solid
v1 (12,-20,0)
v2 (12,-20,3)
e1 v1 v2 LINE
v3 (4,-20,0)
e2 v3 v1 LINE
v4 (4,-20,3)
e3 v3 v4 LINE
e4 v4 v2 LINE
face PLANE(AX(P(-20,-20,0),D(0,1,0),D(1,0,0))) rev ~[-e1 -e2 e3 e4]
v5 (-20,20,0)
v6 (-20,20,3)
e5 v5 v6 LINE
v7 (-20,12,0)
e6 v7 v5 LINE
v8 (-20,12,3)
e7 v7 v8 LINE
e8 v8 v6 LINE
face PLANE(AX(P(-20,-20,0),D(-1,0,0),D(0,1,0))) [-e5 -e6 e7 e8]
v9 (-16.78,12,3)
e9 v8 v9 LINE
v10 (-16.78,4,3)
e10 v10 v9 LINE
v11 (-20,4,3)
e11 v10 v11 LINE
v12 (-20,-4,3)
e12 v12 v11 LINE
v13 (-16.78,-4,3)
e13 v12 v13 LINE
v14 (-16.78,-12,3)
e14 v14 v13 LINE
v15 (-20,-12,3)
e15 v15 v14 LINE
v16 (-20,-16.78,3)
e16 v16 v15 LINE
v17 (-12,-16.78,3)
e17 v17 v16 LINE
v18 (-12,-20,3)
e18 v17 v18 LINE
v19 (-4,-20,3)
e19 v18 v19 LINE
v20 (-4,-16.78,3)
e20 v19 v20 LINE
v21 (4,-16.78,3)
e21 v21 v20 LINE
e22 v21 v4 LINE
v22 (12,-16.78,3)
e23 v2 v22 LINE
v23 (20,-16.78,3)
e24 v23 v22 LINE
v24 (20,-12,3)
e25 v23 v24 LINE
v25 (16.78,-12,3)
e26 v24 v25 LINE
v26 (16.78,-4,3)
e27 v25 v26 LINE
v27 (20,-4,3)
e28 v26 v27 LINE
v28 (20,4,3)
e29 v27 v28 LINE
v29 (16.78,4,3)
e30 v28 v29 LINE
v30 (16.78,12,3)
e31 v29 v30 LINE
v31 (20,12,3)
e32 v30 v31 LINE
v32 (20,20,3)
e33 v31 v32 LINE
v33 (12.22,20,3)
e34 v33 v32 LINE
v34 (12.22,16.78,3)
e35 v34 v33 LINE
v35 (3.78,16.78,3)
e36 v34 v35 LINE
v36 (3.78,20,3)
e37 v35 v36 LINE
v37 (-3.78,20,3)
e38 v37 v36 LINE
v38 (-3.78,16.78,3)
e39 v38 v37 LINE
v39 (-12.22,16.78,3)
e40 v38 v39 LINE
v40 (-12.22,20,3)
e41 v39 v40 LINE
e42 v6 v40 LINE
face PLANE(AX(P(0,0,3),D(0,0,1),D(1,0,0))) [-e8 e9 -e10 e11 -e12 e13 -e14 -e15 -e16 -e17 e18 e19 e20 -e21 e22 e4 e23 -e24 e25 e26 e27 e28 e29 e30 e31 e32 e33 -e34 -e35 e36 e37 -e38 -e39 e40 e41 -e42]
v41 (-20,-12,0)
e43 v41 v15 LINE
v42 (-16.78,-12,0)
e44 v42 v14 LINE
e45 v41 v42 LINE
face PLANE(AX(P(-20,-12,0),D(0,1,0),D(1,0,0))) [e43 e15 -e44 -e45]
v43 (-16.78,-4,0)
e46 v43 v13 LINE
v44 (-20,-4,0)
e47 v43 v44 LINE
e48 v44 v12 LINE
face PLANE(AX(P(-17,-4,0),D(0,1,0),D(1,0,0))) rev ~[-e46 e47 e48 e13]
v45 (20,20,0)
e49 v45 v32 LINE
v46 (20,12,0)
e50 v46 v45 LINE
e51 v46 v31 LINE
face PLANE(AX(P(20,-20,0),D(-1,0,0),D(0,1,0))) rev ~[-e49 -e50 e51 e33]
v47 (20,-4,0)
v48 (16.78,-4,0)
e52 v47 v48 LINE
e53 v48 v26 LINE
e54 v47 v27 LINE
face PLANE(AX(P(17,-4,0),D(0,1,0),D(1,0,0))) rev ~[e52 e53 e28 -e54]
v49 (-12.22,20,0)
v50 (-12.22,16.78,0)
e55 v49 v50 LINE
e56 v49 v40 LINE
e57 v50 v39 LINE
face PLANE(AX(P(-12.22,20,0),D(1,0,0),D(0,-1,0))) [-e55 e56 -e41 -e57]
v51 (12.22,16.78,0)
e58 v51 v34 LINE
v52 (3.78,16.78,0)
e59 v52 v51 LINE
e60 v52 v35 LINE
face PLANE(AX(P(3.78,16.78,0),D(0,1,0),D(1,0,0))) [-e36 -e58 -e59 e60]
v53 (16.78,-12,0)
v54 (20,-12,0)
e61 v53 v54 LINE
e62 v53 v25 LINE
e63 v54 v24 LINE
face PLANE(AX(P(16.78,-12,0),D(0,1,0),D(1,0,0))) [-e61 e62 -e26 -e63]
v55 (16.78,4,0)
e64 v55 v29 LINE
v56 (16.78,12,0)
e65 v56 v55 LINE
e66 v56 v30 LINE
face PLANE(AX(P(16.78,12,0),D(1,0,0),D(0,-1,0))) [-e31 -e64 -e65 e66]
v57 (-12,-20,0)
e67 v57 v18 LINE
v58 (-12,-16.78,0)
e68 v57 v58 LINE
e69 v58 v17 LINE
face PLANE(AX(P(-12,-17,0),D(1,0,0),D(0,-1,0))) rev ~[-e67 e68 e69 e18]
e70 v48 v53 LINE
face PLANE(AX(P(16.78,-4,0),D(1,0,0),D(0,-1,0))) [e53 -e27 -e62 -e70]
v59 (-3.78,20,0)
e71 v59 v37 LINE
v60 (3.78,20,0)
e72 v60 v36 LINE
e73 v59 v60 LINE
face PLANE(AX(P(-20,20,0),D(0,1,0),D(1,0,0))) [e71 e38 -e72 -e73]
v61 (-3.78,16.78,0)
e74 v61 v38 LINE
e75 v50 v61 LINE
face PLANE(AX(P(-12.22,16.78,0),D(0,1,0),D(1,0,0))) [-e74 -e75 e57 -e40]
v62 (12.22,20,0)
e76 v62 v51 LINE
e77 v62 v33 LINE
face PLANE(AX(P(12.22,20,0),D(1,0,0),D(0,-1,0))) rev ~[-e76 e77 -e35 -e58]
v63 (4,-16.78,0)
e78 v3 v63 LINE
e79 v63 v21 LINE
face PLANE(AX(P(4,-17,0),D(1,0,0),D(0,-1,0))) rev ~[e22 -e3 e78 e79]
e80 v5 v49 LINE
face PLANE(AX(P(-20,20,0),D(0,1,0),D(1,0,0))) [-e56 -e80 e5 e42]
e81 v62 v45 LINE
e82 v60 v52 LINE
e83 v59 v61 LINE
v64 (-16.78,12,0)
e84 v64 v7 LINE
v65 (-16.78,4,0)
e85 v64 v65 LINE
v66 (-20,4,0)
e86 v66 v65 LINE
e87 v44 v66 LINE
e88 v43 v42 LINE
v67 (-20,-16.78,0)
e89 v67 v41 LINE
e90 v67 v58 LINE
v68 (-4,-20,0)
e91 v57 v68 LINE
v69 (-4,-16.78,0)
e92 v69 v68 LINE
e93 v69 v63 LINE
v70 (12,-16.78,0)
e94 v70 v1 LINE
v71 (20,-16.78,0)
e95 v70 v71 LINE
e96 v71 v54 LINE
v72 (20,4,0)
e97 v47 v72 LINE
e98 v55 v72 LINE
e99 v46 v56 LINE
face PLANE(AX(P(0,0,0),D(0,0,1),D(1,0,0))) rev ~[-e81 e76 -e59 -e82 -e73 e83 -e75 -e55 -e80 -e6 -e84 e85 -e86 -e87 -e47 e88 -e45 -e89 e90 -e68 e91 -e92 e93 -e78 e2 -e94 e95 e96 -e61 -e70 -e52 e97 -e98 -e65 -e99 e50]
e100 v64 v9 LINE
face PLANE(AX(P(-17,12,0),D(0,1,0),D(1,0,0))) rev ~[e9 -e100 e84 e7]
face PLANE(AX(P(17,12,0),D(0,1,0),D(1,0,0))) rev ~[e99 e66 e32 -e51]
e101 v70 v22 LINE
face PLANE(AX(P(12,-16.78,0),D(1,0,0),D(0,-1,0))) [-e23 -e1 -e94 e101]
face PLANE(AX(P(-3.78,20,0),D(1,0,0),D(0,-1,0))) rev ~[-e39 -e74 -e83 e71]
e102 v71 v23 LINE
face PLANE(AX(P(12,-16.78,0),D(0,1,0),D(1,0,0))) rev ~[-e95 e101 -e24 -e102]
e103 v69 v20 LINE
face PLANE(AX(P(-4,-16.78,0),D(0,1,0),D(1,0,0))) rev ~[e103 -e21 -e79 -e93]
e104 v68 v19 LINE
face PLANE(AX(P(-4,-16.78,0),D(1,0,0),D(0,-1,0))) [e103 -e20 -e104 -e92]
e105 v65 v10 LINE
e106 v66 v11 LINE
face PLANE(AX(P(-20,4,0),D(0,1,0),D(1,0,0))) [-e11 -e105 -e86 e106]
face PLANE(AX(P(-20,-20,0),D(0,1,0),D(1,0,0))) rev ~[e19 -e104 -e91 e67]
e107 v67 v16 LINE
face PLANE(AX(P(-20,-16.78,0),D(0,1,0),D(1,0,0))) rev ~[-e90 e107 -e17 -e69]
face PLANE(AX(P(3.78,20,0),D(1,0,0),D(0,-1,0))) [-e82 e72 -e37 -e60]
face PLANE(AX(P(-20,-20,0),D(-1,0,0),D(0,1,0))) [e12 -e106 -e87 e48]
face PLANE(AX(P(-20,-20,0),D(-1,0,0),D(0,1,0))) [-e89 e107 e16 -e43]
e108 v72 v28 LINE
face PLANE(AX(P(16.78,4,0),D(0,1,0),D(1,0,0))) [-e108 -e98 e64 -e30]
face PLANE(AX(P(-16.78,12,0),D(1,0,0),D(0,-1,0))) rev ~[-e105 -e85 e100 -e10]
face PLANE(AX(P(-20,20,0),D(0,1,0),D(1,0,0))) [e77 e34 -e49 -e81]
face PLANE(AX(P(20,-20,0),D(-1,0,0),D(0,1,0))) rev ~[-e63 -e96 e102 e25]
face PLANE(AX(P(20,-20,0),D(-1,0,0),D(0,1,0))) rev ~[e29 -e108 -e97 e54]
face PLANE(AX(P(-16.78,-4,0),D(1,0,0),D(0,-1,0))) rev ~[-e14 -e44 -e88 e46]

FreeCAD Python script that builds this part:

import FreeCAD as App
import Part
import Sketcher

doc = App.newDocument("Part")
body = doc.addObject("PartDesign::Body", "Body")

# Sketch on XY plane
sketch1 = body.newObject("Sketcher::SketchObject", "Sketch")
sketch1.AttachmentSupport = (doc.getObject("XY_Plane"), [""])
sketch1.MapMode = "FlatFace"
sketch1.addGeometry([
    Part.LineSegment(App.Vector(-20, 20, 0), App.Vector(-20, -20, 0)),
    Part.LineSegment(App.Vector(-20, -20, 0), App.Vector(20, -20, 0)),
    Part.LineSegment(App.Vector(20, -20, 0), App.Vector(20, 20, 0)),
    Part.LineSegment(App.Vector(20, 20, 0), App.Vector(-20, 20, 0)),
], False)
sketch1.addConstraint([
    Sketcher.Constraint("Coincident", 0, 2, 1, 1),
    Sketcher.Constraint("Coincident", 1, 2, 2, 1),
    Sketcher.Constraint("Coincident", 2, 2, 3, 1),
    Sketcher.Constraint("Coincident", 3, 2, 0, 1),
    Sketcher.Constraint("Vertical", 0),
    Sketcher.Constraint("Horizontal", 1),
    Sketcher.Constraint("Vertical", 2),
    Sketcher.Constraint("Horizontal", 3),
    Sketcher.Constraint("Symmetric", 0, 2, 2, 2, -1, 1),
    Sketcher.Constraint("Equal", 3, 0),
    Sketcher.Constraint("DistanceX", 1, 1, 1, 2, 40.0),
])
pad1 = body.newObject("PartDesign::Pad", "Pad")
pad1.Profile = sketch1
pad1.Length = 3

# Sketch on XY plane
sketch2 = body.newObject("Sketcher::SketchObject", "Sketch001")
sketch2.AttachmentSupport = (doc.getObject("XY_Plane"), [""])
sketch2.MapMode = "FlatFace"
sketch2.addGeometry([
    Part.LineSegment(App.Vector(-12, 17, 0), App.Vector(-12, 20, 0)),  # 0
    Part.LineSegment(App.Vector(-12, 20, 0), App.Vector(-4, 20, 0)),  # 1
    Part.LineSegment(App.Vector(-4, 20, 0), App.Vector(-4, 17, 0)),  # 2
    Part.LineSegment(App.Vector(-4, 17, 0), App.Vector(-12, 17, 0)),  # 3
    Part.LineSegment(App.Vector(4, 17, 0), App.Vector(4, 20, 0)),  # 4
    Part.LineSegment(App.Vector(4, 20, 0), App.Vector(12, 20, 0)),  # 5
    Part.LineSegment(App.Vector(12, 20, 0), App.Vector(12, 17, 0)),  # 6
    Part.LineSegment(App.Vector(12, 17, 0), App.Vector(4, 17, 0)),  # 7
    Part.LineSegment(App.Vector(12, -20, 0), App.Vector(12, -17, 0)),  # 8
    Part.LineSegment(App.Vector(12, -17, 0), App.Vector(20, -17, 0)),  # 9
    Part.LineSegment(App.Vector(20, -17, 0), App.Vector(20, -20, 0)),  # 10
    Part.LineSegment(App.Vector(20, -20, 0), App.Vector(12, -20, 0)),  # 11
    Part.LineSegment(App.Vector(-4, -20, 0), App.Vector(-4, -17, 0)),  # 12
    Part.LineSegment(App.Vector(-4, -17, 0), App.Vector(4, -17, 0)),  # 13
    Part.LineSegment(App.Vector(4, -17, 0), App.Vector(4, -20, 0)),  # 14
    Part.LineSegment(App.Vector(4, -20, 0), App.Vector(-4, -20, 0)),  # 15
    Part.LineSegment(App.Vector(-20, 4, 0), App.Vector(-20, 12, 0)),  # 16
    Part.LineSegment(App.Vector(-20, 12, 0), App.Vector(-17, 12, 0)),  # 17
    Part.LineSegment(App.Vector(-17, 12, 0), App.Vector(-17, 4, 0)),  # 18
    Part.LineSegment(App.Vector(-17, 4, 0), App.Vector(-20, 4, 0)),  # 19
    Part.LineSegment(App.Vector(-20, -12, 0), App.Vector(-20, -4, 0)),  # 20
    Part.LineSegment(App.Vector(-20, -4, 0), App.Vector(-17, -4, 0)),  # 21
    Part.LineSegment(App.Vector(-17, -4, 0), App.Vector(-17, -12, 0)),  # 22
    Part.LineSegment(App.Vector(-17, -12, 0), App.Vector(-20, -12, 0)),  # 23
    Part.LineSegment(App.Vector(17, 4, 0), App.Vector(17, 12, 0)),  # 24
    Part.LineSegment(App.Vector(17, 12, 0), App.Vector(20, 12, 0)),  # 25
    Part.LineSegment(App.Vector(20, 12, 0), App.Vector(20, 4, 0)),  # 26
    Part.LineSegment(App.Vector(20, 4, 0), App.Vector(17, 4, 0)),  # 27
    Part.LineSegment(App.Vector(17, -12, 0), App.Vector(17, -4, 0)),  # 28
    Part.LineSegment(App.Vector(17, -4, 0), App.Vector(20, -4, 0)),  # 29
    Part.LineSegment(App.Vector(20, -4, 0), App.Vector(20, -12, 0)),  # 30
    Part.LineSegment(App.Vector(20, -12, 0), App.Vector(17, -12, 0)),  # 31
    Part.LineSegment(App.Vector(-20, -20, 0), App.Vector(-20, -17, 0)),  # 32
    Part.LineSegment(App.Vector(-20, -17, 0), App.Vector(-12, -17, 0)),  # 33
    Part.LineSegment(App.Vector(-12, -17, 0), App.Vector(-12, -20, 0)),  # 34
    Part.LineSegment(App.Vector(-12, -20, 0), App.Vector(-20, -20, 0)),  # 35
], False)
sketch2.addConstraint([
    Sketcher.Constraint("Coincident", 0, 2, 1, 1),
    Sketcher.Constraint("Coincident", 1, 2, 2, 1),
    Sketcher.Constraint("Coincident", 2, 2, 3, 1),
    Sketcher.Constraint("Coincident", 3, 2, 0, 1),
    Sketcher.Constraint("Coincident", 4, 2, 5, 1),
    Sketcher.Constraint("Coincident", 5, 2, 6, 1),
    Sketcher.Constraint("Coincident", 6, 2, 7, 1),
    Sketcher.Constraint("Coincident", 7, 2, 4, 1),
    Sketcher.Constraint("Coincident", 8, 2, 9, 1),
    Sketcher.Constraint("Coincident", 9, 2, 10, 1),
    Sketcher.Constraint("Coincident", 10, 2, 11, 1),
    Sketcher.Constraint("Coincident", 11, 2, 8, 1),
    Sketcher.Constraint("Coincident", 12, 2, 13, 1),
    Sketcher.Constraint("Coincident", 13, 2, 14, 1),
    Sketcher.Constraint("Coincident", 14, 2, 15, 1),
    Sketcher.Constraint("Coincident", 15, 2, 12, 1),
    Sketcher.Constraint("Coincident", 16, 2, 17, 1),
    Sketcher.Constraint("Coincident", 17, 2, 18, 1),
    Sketcher.Constraint("Coincident", 18, 2, 19, 1),
    Sketcher.Constraint("Coincident", 19, 2, 16, 1),
    Sketcher.Constraint("Coincident", 20, 2, 21, 1),
    Sketcher.Constraint("Coincident", 21, 2, 22, 1),
    Sketcher.Constraint("Coincident", 22, 2, 23, 1),
    Sketcher.Constraint("Coincident", 23, 2, 20, 1),
    Sketcher.Constraint("Coincident", 24, 2, 25, 1),
    Sketcher.Constraint("Coincident", 25, 2, 26, 1),
    Sketcher.Constraint("Coincident", 26, 2, 27, 1),
    Sketcher.Constraint("Coincident", 27, 2, 24, 1),
    Sketcher.Constraint("Coincident", 28, 2, 29, 1),
    Sketcher.Constraint("Coincident", 29, 2, 30, 1),
    Sketcher.Constraint("Coincident", 30, 2, 31, 1),
    Sketcher.Constraint("Coincident", 31, 2, 28, 1),
    Sketcher.Constraint("Coincident", 32, 2, 33, 1),
    Sketcher.Constraint("Coincident", 33, 2, 34, 1),
    Sketcher.Constraint("Coincident", 34, 2, 35, 1),
    Sketcher.Constraint("Coincident", 35, 2, 32, 1),
    Sketcher.Constraint("Vertical", 0),
    Sketcher.Constraint("Horizontal", 1),
    Sketcher.Constraint("Vertical", 2),
    Sketcher.Constraint("Horizontal", 3),
    Sketcher.Constraint("Vertical", 4),
    Sketcher.Constraint("Horizontal", 5),
    Sketcher.Constraint("Vertical", 6),
    Sketcher.Constraint("Horizontal", 7),
    Sketcher.Constraint("Vertical", 8),
    Sketcher.Constraint("Horizontal", 9),
    Sketcher.Constraint("Vertical", 10),
    Sketcher.Constraint("Horizontal", 11),
    Sketcher.Constraint("Vertical", 12),
    Sketcher.Constraint("Horizontal", 13),
    Sketcher.Constraint("Vertical", 14),
    Sketcher.Constraint("Horizontal", 15),
    Sketcher.Constraint("Vertical", 16),
    Sketcher.Constraint("Horizontal", 17),
    Sketcher.Constraint("Vertical", 18),
    Sketcher.Constraint("Horizontal", 19),
    Sketcher.Constraint("Vertical", 20),
    Sketcher.Constraint("Horizontal", 21),
    Sketcher.Constraint("Vertical", 22),
    Sketcher.Constraint("Horizontal", 23),
    Sketcher.Constraint("Vertical", 24),
    Sketcher.Constraint("Horizontal", 25),
    Sketcher.Constraint("Vertical", 26),
    Sketcher.Constraint("Horizontal", 27),
    Sketcher.Constraint("Vertical", 28),
    Sketcher.Constraint("Horizontal", 29),
    Sketcher.Constraint("Vertical", 30),
    Sketcher.Constraint("Horizontal", 31),
    Sketcher.Constraint("Vertical", 32),
    Sketcher.Constraint("Horizontal", 33),
    Sketcher.Constraint("Vertical", 34),
    Sketcher.Constraint("Horizontal", 35),
    Sketcher.Constraint("Symmetric", 3, 2, 8, 2, -1, 1),
    Sketcher.Constraint("Symmetric", 7, 2, 12, 2, -1, 1),
    Sketcher.Constraint("Symmetric", 2, 2, 13, 2, -1, 1),
    Sketcher.Constraint("Symmetric", 22, 2, 24, 2, -1, 1),
    Sketcher.Constraint("Symmetric", 20, 2, 26, 2, -1, 1),
    Sketcher.Constraint("Symmetric", 18, 2, 28, 2, -1, 1),
    Sketcher.Constraint("Symmetric", 16, 2, 30, 2, -1, 1),
    Sketcher.Constraint("Symmetric", 6, 2, 33, 2, -1, 1),
    Sketcher.Constraint("Symmetric", 1, 2, 4, 2, -2),
    Sketcher.Constraint("Symmetric", 17, 2, 24, 2, -2),
    Sketcher.Constraint("Symmetric", 19, 2, 26, 2, -2),
    Sketcher.Constraint("Symmetric", 11, 2, 34, 2, -2),
    Sketcher.Constraint("Horizontal", 11, 2, 14, 2),
    Sketcher.Constraint("Vertical", 10, 2, 25, 2),
    Sketcher.Constraint("Vertical", 23, 2, 32, 2),
    Sketcher.Constraint("Equal", 7, 9),
    Sketcher.Constraint("Equal", 11, 13),
    Sketcher.Constraint("Equal", 31, 0),
    Sketcher.Constraint("Equal", 6, 8),
    Sketcher.Constraint("Equal", 35, 16),
    Sketcher.Constraint("DistanceX", 1, 1, 1, 2, 8.0),
    Sketcher.Constraint("DistanceX", 17, 1, 17, 2, 3.0),
    Sketcher.Constraint("DistanceY", -1, 1, 0, 2, 20.0),
    Sketcher.Constraint("DistanceY", -1, 1, 16, 2, 12.0),
])
pocket1 = body.newObject("PartDesign::Pocket", "Pocket")
pocket1.Profile = sketch2
pocket1.Type = "ThroughAll"
pocket1.Reversed = True

# Sketch on XY plane
sketch3 = body.newObject("Sketcher::SketchObject", "Sketch002")
sketch3.AttachmentSupport = (doc.getObject("XY_Plane"), [""])
sketch3.MapMode = "FlatFace"
sketch3.addGeometry([
    Part.LineSegment(App.Vector(-12.22, 16.78, 0), App.Vector(-12.22, 20, 0)),  # 0
    Part.LineSegment(App.Vector(-12.22, 20, 0), App.Vector(-3.78, 20, 0)),  # 1
    Part.LineSegment(App.Vector(-3.78, 20, 0), App.Vector(-3.78, 16.78, 0)),  # 2
    Part.LineSegment(App.Vector(-3.78, 16.78, 0), App.Vector(-12.22, 16.78, 0)),  # 3
    Part.LineSegment(App.Vector(3.78, 16.78, 0), App.Vector(3.78, 20, 0)),  # 4
    Part.LineSegment(App.Vector(3.78, 20, 0), App.Vector(12.22, 20, 0)),  # 5
    Part.LineSegment(App.Vector(12.22, 20, 0), App.Vector(12.22, 16.78, 0)),  # 6
    Part.LineSegment(App.Vector(12.22, 16.78, 0), App.Vector(3.78, 16.78, 0)),  # 7
    Part.LineSegment(App.Vector(-20, -17, 0), App.Vector(-20, -16.78, 0)),  # 8
    Part.LineSegment(App.Vector(-20, -16.78, 0), App.Vector(-12, -16.78, 0)),  # 9
    Part.LineSegment(App.Vector(-12, -16.78, 0), App.Vector(-12, -17, 0)),  # 10
    Part.LineSegment(App.Vector(-12, -17, 0), App.Vector(-20, -17, 0)),  # 11
    Part.LineSegment(App.Vector(-4, -17, 0), App.Vector(-4, -16.78, 0)),  # 12
    Part.LineSegment(App.Vector(-4, -16.78, 0), App.Vector(4, -16.78, 0)),  # 13
    Part.LineSegment(App.Vector(4, -16.78, 0), App.Vector(4, -17, 0)),  # 14
    Part.LineSegment(App.Vector(4, -17, 0), App.Vector(-4, -17, 0)),  # 15
    Part.LineSegment(App.Vector(12, -17, 0), App.Vector(12, -16.78, 0)),  # 16
    Part.LineSegment(App.Vector(12, -16.78, 0), App.Vector(20, -16.78, 0)),  # 17
    Part.LineSegment(App.Vector(20, -16.78, 0), App.Vector(20, -17, 0)),  # 18
    Part.LineSegment(App.Vector(20, -17, 0), App.Vector(12, -17, 0)),  # 19
    Part.LineSegment(App.Vector(-17, 4, 0), App.Vector(-17, 12, 0)),  # 20
    Part.LineSegment(App.Vector(-17, 12, 0), App.Vector(-16.78, 12, 0)),  # 21
    Part.LineSegment(App.Vector(-16.78, 12, 0), App.Vector(-16.78, 4, 0)),  # 22
    Part.LineSegment(App.Vector(-16.78, 4, 0), App.Vector(-17, 4, 0)),  # 23
    Part.LineSegment(App.Vector(-17, -12, 0), App.Vector(-17, -4, 0)),  # 24
    Part.LineSegment(App.Vector(-17, -4, 0), App.Vector(-16.78, -4, 0)),  # 25
    Part.LineSegment(App.Vector(-16.78, -4, 0), App.Vector(-16.78, -12, 0)),  # 26
    Part.LineSegment(App.Vector(-16.78, -12, 0), App.Vector(-17, -12, 0)),  # 27
    Part.LineSegment(App.Vector(16.78, 4, 0), App.Vector(16.78, 12, 0)),  # 28
    Part.LineSegment(App.Vector(16.78, 12, 0), App.Vector(17, 12, 0)),  # 29
    Part.LineSegment(App.Vector(17, 12, 0), App.Vector(17, 4, 0)),  # 30
    Part.LineSegment(App.Vector(17, 4, 0), App.Vector(16.78, 4, 0)),  # 31
    Part.LineSegment(App.Vector(16.78, -12, 0), App.Vector(16.78, -4, 0)),  # 32
    Part.LineSegment(App.Vector(16.78, -4, 0), App.Vector(17, -4, 0)),  # 33
    Part.LineSegment(App.Vector(17, -4, 0), App.Vector(17, -12, 0)),  # 34
    Part.LineSegment(App.Vector(17, -12, 0), App.Vector(16.78, -12, 0)),  # 35
], False)
sketch3.addConstraint([
    Sketcher.Constraint("Coincident", 0, 2, 1, 1),
    Sketcher.Constraint("Coincident", 1, 2, 2, 1),
    Sketcher.Constraint("Coincident", 2, 2, 3, 1),
    Sketcher.Constraint("Coincident", 3, 2, 0, 1),
    Sketcher.Constraint("Coincident", 4, 2, 5, 1),
    Sketcher.Constraint("Coincident", 5, 2, 6, 1),
    Sketcher.Constraint("Coincident", 6, 2, 7, 1),
    Sketcher.Constraint("Coincident", 7, 2, 4, 1),
    Sketcher.Constraint("Coincident", 8, 2, 9, 1),
    Sketcher.Constraint("Coincident", 9, 2, 10, 1),
    Sketcher.Constraint("Coincident", 10, 2, 11, 1),
    Sketcher.Constraint("Coincident", 11, 2, 8, 1),
    Sketcher.Constraint("Coincident", 12, 2, 13, 1),
    Sketcher.Constraint("Coincident", 13, 2, 14, 1),
    Sketcher.Constraint("Coincident", 14, 2, 15, 1),
    Sketcher.Constraint("Coincident", 15, 2, 12, 1),
    Sketcher.Constraint("Coincident", 16, 2, 17, 1),
    Sketcher.Constraint("Coincident", 17, 2, 18, 1),
    Sketcher.Constraint("Coincident", 18, 2, 19, 1),
    Sketcher.Constraint("Coincident", 19, 2, 16, 1),
    Sketcher.Constraint("Coincident", 20, 2, 21, 1),
    Sketcher.Constraint("Coincident", 21, 2, 22, 1),
    Sketcher.Constraint("Coincident", 22, 2, 23, 1),
    Sketcher.Constraint("Coincident", 23, 2, 20, 1),
    Sketcher.Constraint("Coincident", 24, 2, 25, 1),
    Sketcher.Constraint("Coincident", 25, 2, 26, 1),
    Sketcher.Constraint("Coincident", 26, 2, 27, 1),
    Sketcher.Constraint("Coincident", 27, 2, 24, 1),
    Sketcher.Constraint("Coincident", 28, 2, 29, 1),
    Sketcher.Constraint("Coincident", 29, 2, 30, 1),
    Sketcher.Constraint("Coincident", 30, 2, 31, 1),
    Sketcher.Constraint("Coincident", 31, 2, 28, 1),
    Sketcher.Constraint("Coincident", 32, 2, 33, 1),
    Sketcher.Constraint("Coincident", 33, 2, 34, 1),
    Sketcher.Constraint("Coincident", 34, 2, 35, 1),
    Sketcher.Constraint("Coincident", 35, 2, 32, 1),
    Sketcher.Constraint("Vertical", 0),
    Sketcher.Constraint("Horizontal", 1),
    Sketcher.Constraint("Vertical", 2),
    Sketcher.Constraint("Horizontal", 3),
    Sketcher.Constraint("Vertical", 4),
    Sketcher.Constraint("Horizontal", 5),
    Sketcher.Constraint("Vertical", 6),
    Sketcher.Constraint("Horizontal", 7),
    Sketcher.Constraint("Vertical", 8),
    Sketcher.Constraint("Horizontal", 9),
    Sketcher.Constraint("Vertical", 10),
    Sketcher.Constraint("Horizontal", 11),
    Sketcher.Constraint("Vertical", 12),
    Sketcher.Constraint("Horizontal", 13),
    Sketcher.Constraint("Vertical", 14),
    Sketcher.Constraint("Horizontal", 15),
    Sketcher.Constraint("Vertical", 16),
    Sketcher.Constraint("Horizontal", 17),
    Sketcher.Constraint("Vertical", 18),
    Sketcher.Constraint("Horizontal", 19),
    Sketcher.Constraint("Vertical", 20),
    Sketcher.Constraint("Horizontal", 21),
    Sketcher.Constraint("Vertical", 22),
    Sketcher.Constraint("Horizontal", 23),
    Sketcher.Constraint("Vertical", 24),
    Sketcher.Constraint("Horizontal", 25),
    Sketcher.Constraint("Vertical", 26),
    Sketcher.Constraint("Horizontal", 27),
    Sketcher.Constraint("Vertical", 28),
    Sketcher.Constraint("Horizontal", 29),
    Sketcher.Constraint("Vertical", 30),
    Sketcher.Constraint("Horizontal", 31),
    Sketcher.Constraint("Vertical", 32),
    Sketcher.Constraint("Horizontal", 33),
    Sketcher.Constraint("Vertical", 34),
    Sketcher.Constraint("Horizontal", 35),
    Sketcher.Constraint("Symmetric", 26, 2, 28, 2, -1, 1),
    Sketcher.Constraint("Symmetric", 24, 2, 30, 2, -1, 1),
    Sketcher.Constraint("Symmetric", 22, 2, 32, 2, -1, 1),
    Sketcher.Constraint("Symmetric", 20, 2, 34, 2, -1, 1),
    Sketcher.Constraint("Symmetric", 1, 2, 4, 2, -2),
    Sketcher.Constraint("Symmetric", 3, 2, 6, 2, -2),
    Sketcher.Constraint("Symmetric", 9, 2, 16, 2, -2),
    Sketcher.Constraint("Symmetric", 11, 2, 18, 2, -2),
    Sketcher.Constraint("Symmetric", 21, 2, 28, 2, -2),
    Sketcher.Constraint("Symmetric", 23, 2, 30, 2, -2),
    Sketcher.Constraint("Horizontal", 9, 2, 12, 2),
    Sketcher.Constraint("Horizontal", 11, 2, 14, 2),
    Sketcher.Constraint("Equal", 11, 13),
    Sketcher.Constraint("Equal", 35, 8),
    Sketcher.Constraint("Equal", 19, 20),
    Sketcher.Constraint("DistanceX", 9, 1, 9, 2, 8.0),
    Sketcher.Constraint("DistanceY", -1, 1, 0, 2, 20.0),
    Sketcher.Constraint("DistanceX", 8, 2, -1, 1, 20.0),
    Sketcher.Constraint("DistanceY", 10, 2, -1, 1, 17.0),
    Sketcher.Constraint("DistanceX", 12, 2, -1, 1, 4.0),
    Sketcher.Constraint("DistanceX", 20, 2, -1, 1, 17.0),
    Sketcher.Constraint("DistanceY", -1, 1, 20, 2, 12.0),
    Sketcher.Constraint("DistanceX", 0, 2, 4, 2, 16.0),
    Sketcher.Constraint("DistanceX", 21, 2, 2, 2, 13.0),
    Sketcher.Constraint("DistanceX", 1, 1, 1, 2, 8.44),
    Sketcher.Constraint("DistanceY", 0, 1, 0, 2, 3.22),
])
pocket2 = body.newObject("PartDesign::Pocket", "Pocket001")
pocket2.Profile = sketch3
pocket2.Type = "ThroughAll"
pocket2.Reversed = True

doc.recompute()
